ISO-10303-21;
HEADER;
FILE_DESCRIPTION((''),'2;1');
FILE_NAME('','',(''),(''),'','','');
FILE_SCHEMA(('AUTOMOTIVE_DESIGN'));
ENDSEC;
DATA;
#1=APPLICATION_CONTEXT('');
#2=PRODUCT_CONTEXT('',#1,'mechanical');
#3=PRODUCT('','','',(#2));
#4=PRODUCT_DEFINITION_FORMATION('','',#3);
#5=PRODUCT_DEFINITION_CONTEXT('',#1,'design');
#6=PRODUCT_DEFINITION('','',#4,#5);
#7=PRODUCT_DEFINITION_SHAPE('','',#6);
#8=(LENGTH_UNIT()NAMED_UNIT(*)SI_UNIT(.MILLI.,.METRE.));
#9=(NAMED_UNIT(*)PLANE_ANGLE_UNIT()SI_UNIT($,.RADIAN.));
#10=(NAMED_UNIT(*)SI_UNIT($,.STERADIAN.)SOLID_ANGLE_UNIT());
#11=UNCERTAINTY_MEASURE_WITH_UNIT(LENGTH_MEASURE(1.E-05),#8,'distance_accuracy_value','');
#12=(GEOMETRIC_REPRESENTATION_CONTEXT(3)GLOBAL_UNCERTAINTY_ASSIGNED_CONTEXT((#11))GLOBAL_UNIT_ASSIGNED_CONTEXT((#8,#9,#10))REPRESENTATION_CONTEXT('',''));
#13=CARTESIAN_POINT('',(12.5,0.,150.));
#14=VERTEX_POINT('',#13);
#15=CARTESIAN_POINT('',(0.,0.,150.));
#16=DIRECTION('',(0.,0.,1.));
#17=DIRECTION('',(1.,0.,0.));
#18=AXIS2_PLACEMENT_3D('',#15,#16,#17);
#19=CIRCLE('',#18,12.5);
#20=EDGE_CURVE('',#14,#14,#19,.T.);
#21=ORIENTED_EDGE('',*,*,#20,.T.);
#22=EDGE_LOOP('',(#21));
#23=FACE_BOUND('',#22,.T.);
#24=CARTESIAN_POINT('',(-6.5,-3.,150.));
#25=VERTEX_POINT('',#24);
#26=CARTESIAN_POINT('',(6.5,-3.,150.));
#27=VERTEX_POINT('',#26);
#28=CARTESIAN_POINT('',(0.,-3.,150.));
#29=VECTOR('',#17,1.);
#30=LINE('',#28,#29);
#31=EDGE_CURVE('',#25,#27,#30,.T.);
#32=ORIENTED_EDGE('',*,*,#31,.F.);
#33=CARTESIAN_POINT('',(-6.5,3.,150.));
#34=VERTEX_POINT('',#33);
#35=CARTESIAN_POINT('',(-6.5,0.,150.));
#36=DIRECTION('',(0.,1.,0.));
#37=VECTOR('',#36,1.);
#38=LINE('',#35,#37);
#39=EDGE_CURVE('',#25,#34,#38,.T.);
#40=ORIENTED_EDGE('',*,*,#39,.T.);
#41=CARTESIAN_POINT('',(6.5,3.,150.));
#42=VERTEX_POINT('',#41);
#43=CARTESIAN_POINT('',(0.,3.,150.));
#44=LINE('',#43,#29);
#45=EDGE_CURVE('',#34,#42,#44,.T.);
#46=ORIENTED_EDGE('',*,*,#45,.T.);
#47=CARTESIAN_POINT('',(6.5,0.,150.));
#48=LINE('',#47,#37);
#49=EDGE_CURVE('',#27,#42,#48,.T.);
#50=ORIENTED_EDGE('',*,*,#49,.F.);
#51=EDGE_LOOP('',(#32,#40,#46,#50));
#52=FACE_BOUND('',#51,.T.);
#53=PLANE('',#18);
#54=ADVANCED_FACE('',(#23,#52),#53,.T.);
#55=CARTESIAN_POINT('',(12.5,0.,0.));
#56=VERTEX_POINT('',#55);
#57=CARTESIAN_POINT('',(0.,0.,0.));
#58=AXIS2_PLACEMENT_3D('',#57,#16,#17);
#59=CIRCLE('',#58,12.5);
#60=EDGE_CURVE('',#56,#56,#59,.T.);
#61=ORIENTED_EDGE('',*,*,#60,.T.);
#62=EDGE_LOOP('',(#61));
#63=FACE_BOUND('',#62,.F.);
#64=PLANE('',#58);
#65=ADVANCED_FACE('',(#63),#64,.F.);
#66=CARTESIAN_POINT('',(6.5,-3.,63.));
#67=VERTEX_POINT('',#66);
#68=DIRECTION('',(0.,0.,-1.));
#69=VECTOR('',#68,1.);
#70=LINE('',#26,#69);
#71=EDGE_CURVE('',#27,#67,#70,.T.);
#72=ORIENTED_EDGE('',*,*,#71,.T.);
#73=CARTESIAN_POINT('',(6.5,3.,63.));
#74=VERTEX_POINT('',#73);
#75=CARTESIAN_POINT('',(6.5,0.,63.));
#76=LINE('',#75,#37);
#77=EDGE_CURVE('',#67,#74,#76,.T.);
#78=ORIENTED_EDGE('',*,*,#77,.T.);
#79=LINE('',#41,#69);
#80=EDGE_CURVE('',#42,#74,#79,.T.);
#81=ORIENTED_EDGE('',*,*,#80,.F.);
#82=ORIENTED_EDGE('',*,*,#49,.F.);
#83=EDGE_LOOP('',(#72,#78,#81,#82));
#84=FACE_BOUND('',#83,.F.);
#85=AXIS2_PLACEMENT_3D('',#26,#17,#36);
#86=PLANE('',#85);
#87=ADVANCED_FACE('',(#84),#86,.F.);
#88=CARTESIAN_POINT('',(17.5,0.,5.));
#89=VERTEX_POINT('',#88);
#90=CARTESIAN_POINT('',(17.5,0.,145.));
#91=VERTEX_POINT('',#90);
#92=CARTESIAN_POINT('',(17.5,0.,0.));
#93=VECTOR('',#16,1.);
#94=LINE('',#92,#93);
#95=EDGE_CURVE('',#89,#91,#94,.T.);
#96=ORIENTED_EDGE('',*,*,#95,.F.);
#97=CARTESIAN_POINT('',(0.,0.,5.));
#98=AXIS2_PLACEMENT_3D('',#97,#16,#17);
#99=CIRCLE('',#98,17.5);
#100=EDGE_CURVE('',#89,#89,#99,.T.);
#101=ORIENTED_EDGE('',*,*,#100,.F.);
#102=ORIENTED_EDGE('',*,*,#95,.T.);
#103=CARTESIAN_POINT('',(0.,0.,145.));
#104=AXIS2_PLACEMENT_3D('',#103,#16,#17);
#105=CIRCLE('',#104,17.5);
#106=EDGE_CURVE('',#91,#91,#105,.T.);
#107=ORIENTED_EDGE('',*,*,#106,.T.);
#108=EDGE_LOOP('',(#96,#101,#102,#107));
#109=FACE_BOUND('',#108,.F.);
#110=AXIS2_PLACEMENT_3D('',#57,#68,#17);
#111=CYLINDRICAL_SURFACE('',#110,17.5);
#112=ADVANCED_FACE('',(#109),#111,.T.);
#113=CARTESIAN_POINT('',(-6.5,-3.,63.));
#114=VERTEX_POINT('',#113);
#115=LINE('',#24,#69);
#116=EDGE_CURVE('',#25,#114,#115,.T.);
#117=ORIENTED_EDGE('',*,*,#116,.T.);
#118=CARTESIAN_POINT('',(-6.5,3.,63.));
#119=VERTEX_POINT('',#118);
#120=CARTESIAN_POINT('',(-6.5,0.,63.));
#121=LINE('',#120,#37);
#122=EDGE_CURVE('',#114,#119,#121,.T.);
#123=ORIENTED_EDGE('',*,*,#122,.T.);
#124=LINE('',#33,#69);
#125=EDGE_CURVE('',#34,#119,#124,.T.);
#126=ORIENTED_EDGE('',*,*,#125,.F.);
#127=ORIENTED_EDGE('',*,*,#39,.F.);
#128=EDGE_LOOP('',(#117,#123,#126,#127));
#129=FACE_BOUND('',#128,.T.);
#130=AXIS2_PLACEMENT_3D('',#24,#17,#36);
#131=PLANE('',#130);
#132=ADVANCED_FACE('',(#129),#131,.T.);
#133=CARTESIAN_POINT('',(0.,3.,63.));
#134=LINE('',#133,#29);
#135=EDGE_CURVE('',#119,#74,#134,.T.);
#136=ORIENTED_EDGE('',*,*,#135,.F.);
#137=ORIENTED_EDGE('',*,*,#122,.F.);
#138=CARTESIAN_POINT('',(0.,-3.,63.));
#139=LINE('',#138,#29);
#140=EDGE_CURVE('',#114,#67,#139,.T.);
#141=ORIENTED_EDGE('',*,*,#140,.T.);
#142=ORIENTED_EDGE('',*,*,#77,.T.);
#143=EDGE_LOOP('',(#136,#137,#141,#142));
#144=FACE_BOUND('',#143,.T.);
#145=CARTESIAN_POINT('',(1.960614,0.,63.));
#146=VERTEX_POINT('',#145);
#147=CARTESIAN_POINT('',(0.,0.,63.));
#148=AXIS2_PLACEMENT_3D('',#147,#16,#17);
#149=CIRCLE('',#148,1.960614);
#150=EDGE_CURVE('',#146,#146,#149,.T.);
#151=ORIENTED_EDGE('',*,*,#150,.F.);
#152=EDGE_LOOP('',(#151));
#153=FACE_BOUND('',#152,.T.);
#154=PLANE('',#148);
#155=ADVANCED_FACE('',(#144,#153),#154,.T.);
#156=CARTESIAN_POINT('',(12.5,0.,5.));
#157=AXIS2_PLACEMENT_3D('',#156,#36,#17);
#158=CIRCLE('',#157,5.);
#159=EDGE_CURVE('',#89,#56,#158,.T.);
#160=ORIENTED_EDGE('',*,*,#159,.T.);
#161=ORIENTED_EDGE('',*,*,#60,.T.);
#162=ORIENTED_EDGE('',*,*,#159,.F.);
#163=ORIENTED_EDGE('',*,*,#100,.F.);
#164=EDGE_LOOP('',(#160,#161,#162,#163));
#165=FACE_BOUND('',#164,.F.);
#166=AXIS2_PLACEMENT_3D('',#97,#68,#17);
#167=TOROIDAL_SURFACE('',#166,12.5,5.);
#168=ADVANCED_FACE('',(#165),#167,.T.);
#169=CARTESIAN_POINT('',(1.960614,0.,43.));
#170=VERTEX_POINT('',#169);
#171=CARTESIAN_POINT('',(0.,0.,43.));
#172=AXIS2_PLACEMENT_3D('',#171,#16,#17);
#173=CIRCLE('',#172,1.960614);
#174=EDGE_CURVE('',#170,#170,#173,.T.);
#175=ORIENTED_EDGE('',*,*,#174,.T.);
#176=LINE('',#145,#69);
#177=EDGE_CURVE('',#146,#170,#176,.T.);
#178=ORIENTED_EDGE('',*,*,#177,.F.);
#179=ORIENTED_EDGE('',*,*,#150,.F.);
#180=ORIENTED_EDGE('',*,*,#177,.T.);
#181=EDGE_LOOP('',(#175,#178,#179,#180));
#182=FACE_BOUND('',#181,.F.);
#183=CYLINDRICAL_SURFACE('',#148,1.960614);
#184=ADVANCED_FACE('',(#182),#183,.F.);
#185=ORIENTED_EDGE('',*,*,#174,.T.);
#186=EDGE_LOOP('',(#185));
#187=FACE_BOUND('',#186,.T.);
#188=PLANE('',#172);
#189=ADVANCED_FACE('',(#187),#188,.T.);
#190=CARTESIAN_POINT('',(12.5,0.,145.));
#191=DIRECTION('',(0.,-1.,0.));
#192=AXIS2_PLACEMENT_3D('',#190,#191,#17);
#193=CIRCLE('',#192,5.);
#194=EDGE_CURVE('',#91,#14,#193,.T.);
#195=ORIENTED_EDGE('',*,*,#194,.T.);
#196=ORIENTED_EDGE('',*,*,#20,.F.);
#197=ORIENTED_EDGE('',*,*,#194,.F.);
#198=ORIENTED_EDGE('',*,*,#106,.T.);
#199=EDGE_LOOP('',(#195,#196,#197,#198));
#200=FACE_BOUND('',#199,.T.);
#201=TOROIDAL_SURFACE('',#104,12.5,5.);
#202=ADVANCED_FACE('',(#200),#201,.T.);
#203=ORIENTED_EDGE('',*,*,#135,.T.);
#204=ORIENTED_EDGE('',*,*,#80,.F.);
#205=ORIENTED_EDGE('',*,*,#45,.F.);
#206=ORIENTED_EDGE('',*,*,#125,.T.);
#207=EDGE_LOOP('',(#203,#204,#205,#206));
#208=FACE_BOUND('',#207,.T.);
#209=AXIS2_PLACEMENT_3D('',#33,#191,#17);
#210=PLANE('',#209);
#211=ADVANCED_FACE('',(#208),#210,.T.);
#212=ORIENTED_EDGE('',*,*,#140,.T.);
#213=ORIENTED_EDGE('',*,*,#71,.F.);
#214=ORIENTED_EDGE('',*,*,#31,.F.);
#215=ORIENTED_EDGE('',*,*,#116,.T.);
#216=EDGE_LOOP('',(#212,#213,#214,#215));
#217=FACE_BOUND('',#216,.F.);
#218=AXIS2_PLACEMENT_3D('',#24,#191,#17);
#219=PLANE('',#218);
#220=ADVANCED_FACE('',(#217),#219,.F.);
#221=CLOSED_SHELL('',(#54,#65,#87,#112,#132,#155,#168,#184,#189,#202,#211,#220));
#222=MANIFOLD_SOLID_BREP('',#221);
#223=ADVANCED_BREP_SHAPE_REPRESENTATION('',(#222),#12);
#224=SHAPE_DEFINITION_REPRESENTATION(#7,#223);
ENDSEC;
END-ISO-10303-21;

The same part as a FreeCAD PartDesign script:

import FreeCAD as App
import Part
import Sketcher
from FreeCAD import Vector


def edges_at(feature, points):
    """Names of the edges that pass closest to the given points."""
    edges = feature.Shape.Edges
    near = lambda p: min(range(len(edges)), key=lambda i: edges[i].distToShape(Part.Vertex(*p))[0])
    return sorted({f"Edge{near(p) + 1}" for p in points})


def add_polygon(sketch, points):
    """Adds a closed chain of lines whose ends are joined by coincident constraints."""
    first, n = sketch.GeometryCount, len(points)
    for a, b in zip(points, points[1:] + points[:1]):
        sketch.addGeometry(Part.LineSegment(App.Vector(*a, 0), App.Vector(*b, 0)), False)
    for i in range(n):
        sketch.addConstraint(Sketcher.Constraint("Coincident", first + i, 2, first + (i + 1) % n, 1))

doc = App.newDocument("Part")
body = doc.addObject("PartDesign::Body", "Body")

sketch1 = doc.addObject("Sketcher::SketchObject", "Sketch")
body.addObject(sketch1)
sketch1.AttachmentSupport = (doc.XY_Plane, [""])
sketch1.MapMode = "FlatFace"
sketch1.addGeometry(Part.Circle(Vector(0, 0, 0), Vector(0, 0, 1), 18), False)
sketch1.addConstraint([
    Sketcher.Constraint("Coincident", 0, 3, -1, 1),
    Sketcher.Constraint("Diameter", 0, 35.0),
])
pad1 = doc.addObject("PartDesign::Pad", "Pad")
body.addObject(pad1)
pad1.Profile = sketch1
pad1.Length = 150

sketch2 = doc.addObject("Sketcher::SketchObject", "Sketch001")
body.addObject(sketch2)
sketch2.AttachmentSupport = (doc.XY_Plane, [""])
sketch2.MapMode = "FlatFace"
sketch2.AttachmentOffset = App.Placement(Vector(0, 0, 150), App.Rotation())
add_polygon(sketch2, [(-6, 3), (-6, -3), (6, -3), (6, 3)])
sketch2.addConstraint([
    Sketcher.Constraint("Vertical", 0),
    Sketcher.Constraint("Horizontal", 1),
    Sketcher.Constraint("Vertical", 2),
    Sketcher.Constraint("Horizontal", 3),
    Sketcher.Constraint("Symmetric", 0, 2, 2, 2, -1, 1),
    Sketcher.Constraint("DistanceX", 1, 1, 1, 2, 13.0),
    Sketcher.Constraint("DistanceY", 0, 2, 0, 1, 6.0),
])
pocket1 = doc.addObject("PartDesign::Pocket", "Pocket")
body.addObject(pocket1)
pocket1.Profile = sketch2
pocket1.Length = 87

sketch3 = doc.addObject("Sketcher::SketchObject", "Sketch002")
body.addObject(sketch3)
sketch3.AttachmentSupport = (doc.XY_Plane, [""])
sketch3.MapMode = "FlatFace"
sketch3.AttachmentOffset = App.Placement(Vector(0, 0, 63), App.Rotation())
sketch3.addGeometry(Part.Circle(Vector(0, 0, 0), Vector(0, 0, 1), 2), False)
sketch3.addConstraint([
    Sketcher.Constraint("Coincident", 0, 3, -1, 1),
    Sketcher.Constraint("Diameter", 0, 3.921228),
])
pocket2 = doc.addObject("PartDesign::Pocket", "Pocket001")
body.addObject(pocket2)
pocket2.Profile = sketch3
pocket2.Length = 20
doc.recompute()

fillet = doc.addObject("PartDesign::Fillet", "Fillet")
body.addObject(fillet)
fillet.Base = (pocket2, edges_at(pocket2, [(-17.5, 0, 150), (-17.5, 0, 0)]))
fillet.Radius = 5

doc.recompute()
